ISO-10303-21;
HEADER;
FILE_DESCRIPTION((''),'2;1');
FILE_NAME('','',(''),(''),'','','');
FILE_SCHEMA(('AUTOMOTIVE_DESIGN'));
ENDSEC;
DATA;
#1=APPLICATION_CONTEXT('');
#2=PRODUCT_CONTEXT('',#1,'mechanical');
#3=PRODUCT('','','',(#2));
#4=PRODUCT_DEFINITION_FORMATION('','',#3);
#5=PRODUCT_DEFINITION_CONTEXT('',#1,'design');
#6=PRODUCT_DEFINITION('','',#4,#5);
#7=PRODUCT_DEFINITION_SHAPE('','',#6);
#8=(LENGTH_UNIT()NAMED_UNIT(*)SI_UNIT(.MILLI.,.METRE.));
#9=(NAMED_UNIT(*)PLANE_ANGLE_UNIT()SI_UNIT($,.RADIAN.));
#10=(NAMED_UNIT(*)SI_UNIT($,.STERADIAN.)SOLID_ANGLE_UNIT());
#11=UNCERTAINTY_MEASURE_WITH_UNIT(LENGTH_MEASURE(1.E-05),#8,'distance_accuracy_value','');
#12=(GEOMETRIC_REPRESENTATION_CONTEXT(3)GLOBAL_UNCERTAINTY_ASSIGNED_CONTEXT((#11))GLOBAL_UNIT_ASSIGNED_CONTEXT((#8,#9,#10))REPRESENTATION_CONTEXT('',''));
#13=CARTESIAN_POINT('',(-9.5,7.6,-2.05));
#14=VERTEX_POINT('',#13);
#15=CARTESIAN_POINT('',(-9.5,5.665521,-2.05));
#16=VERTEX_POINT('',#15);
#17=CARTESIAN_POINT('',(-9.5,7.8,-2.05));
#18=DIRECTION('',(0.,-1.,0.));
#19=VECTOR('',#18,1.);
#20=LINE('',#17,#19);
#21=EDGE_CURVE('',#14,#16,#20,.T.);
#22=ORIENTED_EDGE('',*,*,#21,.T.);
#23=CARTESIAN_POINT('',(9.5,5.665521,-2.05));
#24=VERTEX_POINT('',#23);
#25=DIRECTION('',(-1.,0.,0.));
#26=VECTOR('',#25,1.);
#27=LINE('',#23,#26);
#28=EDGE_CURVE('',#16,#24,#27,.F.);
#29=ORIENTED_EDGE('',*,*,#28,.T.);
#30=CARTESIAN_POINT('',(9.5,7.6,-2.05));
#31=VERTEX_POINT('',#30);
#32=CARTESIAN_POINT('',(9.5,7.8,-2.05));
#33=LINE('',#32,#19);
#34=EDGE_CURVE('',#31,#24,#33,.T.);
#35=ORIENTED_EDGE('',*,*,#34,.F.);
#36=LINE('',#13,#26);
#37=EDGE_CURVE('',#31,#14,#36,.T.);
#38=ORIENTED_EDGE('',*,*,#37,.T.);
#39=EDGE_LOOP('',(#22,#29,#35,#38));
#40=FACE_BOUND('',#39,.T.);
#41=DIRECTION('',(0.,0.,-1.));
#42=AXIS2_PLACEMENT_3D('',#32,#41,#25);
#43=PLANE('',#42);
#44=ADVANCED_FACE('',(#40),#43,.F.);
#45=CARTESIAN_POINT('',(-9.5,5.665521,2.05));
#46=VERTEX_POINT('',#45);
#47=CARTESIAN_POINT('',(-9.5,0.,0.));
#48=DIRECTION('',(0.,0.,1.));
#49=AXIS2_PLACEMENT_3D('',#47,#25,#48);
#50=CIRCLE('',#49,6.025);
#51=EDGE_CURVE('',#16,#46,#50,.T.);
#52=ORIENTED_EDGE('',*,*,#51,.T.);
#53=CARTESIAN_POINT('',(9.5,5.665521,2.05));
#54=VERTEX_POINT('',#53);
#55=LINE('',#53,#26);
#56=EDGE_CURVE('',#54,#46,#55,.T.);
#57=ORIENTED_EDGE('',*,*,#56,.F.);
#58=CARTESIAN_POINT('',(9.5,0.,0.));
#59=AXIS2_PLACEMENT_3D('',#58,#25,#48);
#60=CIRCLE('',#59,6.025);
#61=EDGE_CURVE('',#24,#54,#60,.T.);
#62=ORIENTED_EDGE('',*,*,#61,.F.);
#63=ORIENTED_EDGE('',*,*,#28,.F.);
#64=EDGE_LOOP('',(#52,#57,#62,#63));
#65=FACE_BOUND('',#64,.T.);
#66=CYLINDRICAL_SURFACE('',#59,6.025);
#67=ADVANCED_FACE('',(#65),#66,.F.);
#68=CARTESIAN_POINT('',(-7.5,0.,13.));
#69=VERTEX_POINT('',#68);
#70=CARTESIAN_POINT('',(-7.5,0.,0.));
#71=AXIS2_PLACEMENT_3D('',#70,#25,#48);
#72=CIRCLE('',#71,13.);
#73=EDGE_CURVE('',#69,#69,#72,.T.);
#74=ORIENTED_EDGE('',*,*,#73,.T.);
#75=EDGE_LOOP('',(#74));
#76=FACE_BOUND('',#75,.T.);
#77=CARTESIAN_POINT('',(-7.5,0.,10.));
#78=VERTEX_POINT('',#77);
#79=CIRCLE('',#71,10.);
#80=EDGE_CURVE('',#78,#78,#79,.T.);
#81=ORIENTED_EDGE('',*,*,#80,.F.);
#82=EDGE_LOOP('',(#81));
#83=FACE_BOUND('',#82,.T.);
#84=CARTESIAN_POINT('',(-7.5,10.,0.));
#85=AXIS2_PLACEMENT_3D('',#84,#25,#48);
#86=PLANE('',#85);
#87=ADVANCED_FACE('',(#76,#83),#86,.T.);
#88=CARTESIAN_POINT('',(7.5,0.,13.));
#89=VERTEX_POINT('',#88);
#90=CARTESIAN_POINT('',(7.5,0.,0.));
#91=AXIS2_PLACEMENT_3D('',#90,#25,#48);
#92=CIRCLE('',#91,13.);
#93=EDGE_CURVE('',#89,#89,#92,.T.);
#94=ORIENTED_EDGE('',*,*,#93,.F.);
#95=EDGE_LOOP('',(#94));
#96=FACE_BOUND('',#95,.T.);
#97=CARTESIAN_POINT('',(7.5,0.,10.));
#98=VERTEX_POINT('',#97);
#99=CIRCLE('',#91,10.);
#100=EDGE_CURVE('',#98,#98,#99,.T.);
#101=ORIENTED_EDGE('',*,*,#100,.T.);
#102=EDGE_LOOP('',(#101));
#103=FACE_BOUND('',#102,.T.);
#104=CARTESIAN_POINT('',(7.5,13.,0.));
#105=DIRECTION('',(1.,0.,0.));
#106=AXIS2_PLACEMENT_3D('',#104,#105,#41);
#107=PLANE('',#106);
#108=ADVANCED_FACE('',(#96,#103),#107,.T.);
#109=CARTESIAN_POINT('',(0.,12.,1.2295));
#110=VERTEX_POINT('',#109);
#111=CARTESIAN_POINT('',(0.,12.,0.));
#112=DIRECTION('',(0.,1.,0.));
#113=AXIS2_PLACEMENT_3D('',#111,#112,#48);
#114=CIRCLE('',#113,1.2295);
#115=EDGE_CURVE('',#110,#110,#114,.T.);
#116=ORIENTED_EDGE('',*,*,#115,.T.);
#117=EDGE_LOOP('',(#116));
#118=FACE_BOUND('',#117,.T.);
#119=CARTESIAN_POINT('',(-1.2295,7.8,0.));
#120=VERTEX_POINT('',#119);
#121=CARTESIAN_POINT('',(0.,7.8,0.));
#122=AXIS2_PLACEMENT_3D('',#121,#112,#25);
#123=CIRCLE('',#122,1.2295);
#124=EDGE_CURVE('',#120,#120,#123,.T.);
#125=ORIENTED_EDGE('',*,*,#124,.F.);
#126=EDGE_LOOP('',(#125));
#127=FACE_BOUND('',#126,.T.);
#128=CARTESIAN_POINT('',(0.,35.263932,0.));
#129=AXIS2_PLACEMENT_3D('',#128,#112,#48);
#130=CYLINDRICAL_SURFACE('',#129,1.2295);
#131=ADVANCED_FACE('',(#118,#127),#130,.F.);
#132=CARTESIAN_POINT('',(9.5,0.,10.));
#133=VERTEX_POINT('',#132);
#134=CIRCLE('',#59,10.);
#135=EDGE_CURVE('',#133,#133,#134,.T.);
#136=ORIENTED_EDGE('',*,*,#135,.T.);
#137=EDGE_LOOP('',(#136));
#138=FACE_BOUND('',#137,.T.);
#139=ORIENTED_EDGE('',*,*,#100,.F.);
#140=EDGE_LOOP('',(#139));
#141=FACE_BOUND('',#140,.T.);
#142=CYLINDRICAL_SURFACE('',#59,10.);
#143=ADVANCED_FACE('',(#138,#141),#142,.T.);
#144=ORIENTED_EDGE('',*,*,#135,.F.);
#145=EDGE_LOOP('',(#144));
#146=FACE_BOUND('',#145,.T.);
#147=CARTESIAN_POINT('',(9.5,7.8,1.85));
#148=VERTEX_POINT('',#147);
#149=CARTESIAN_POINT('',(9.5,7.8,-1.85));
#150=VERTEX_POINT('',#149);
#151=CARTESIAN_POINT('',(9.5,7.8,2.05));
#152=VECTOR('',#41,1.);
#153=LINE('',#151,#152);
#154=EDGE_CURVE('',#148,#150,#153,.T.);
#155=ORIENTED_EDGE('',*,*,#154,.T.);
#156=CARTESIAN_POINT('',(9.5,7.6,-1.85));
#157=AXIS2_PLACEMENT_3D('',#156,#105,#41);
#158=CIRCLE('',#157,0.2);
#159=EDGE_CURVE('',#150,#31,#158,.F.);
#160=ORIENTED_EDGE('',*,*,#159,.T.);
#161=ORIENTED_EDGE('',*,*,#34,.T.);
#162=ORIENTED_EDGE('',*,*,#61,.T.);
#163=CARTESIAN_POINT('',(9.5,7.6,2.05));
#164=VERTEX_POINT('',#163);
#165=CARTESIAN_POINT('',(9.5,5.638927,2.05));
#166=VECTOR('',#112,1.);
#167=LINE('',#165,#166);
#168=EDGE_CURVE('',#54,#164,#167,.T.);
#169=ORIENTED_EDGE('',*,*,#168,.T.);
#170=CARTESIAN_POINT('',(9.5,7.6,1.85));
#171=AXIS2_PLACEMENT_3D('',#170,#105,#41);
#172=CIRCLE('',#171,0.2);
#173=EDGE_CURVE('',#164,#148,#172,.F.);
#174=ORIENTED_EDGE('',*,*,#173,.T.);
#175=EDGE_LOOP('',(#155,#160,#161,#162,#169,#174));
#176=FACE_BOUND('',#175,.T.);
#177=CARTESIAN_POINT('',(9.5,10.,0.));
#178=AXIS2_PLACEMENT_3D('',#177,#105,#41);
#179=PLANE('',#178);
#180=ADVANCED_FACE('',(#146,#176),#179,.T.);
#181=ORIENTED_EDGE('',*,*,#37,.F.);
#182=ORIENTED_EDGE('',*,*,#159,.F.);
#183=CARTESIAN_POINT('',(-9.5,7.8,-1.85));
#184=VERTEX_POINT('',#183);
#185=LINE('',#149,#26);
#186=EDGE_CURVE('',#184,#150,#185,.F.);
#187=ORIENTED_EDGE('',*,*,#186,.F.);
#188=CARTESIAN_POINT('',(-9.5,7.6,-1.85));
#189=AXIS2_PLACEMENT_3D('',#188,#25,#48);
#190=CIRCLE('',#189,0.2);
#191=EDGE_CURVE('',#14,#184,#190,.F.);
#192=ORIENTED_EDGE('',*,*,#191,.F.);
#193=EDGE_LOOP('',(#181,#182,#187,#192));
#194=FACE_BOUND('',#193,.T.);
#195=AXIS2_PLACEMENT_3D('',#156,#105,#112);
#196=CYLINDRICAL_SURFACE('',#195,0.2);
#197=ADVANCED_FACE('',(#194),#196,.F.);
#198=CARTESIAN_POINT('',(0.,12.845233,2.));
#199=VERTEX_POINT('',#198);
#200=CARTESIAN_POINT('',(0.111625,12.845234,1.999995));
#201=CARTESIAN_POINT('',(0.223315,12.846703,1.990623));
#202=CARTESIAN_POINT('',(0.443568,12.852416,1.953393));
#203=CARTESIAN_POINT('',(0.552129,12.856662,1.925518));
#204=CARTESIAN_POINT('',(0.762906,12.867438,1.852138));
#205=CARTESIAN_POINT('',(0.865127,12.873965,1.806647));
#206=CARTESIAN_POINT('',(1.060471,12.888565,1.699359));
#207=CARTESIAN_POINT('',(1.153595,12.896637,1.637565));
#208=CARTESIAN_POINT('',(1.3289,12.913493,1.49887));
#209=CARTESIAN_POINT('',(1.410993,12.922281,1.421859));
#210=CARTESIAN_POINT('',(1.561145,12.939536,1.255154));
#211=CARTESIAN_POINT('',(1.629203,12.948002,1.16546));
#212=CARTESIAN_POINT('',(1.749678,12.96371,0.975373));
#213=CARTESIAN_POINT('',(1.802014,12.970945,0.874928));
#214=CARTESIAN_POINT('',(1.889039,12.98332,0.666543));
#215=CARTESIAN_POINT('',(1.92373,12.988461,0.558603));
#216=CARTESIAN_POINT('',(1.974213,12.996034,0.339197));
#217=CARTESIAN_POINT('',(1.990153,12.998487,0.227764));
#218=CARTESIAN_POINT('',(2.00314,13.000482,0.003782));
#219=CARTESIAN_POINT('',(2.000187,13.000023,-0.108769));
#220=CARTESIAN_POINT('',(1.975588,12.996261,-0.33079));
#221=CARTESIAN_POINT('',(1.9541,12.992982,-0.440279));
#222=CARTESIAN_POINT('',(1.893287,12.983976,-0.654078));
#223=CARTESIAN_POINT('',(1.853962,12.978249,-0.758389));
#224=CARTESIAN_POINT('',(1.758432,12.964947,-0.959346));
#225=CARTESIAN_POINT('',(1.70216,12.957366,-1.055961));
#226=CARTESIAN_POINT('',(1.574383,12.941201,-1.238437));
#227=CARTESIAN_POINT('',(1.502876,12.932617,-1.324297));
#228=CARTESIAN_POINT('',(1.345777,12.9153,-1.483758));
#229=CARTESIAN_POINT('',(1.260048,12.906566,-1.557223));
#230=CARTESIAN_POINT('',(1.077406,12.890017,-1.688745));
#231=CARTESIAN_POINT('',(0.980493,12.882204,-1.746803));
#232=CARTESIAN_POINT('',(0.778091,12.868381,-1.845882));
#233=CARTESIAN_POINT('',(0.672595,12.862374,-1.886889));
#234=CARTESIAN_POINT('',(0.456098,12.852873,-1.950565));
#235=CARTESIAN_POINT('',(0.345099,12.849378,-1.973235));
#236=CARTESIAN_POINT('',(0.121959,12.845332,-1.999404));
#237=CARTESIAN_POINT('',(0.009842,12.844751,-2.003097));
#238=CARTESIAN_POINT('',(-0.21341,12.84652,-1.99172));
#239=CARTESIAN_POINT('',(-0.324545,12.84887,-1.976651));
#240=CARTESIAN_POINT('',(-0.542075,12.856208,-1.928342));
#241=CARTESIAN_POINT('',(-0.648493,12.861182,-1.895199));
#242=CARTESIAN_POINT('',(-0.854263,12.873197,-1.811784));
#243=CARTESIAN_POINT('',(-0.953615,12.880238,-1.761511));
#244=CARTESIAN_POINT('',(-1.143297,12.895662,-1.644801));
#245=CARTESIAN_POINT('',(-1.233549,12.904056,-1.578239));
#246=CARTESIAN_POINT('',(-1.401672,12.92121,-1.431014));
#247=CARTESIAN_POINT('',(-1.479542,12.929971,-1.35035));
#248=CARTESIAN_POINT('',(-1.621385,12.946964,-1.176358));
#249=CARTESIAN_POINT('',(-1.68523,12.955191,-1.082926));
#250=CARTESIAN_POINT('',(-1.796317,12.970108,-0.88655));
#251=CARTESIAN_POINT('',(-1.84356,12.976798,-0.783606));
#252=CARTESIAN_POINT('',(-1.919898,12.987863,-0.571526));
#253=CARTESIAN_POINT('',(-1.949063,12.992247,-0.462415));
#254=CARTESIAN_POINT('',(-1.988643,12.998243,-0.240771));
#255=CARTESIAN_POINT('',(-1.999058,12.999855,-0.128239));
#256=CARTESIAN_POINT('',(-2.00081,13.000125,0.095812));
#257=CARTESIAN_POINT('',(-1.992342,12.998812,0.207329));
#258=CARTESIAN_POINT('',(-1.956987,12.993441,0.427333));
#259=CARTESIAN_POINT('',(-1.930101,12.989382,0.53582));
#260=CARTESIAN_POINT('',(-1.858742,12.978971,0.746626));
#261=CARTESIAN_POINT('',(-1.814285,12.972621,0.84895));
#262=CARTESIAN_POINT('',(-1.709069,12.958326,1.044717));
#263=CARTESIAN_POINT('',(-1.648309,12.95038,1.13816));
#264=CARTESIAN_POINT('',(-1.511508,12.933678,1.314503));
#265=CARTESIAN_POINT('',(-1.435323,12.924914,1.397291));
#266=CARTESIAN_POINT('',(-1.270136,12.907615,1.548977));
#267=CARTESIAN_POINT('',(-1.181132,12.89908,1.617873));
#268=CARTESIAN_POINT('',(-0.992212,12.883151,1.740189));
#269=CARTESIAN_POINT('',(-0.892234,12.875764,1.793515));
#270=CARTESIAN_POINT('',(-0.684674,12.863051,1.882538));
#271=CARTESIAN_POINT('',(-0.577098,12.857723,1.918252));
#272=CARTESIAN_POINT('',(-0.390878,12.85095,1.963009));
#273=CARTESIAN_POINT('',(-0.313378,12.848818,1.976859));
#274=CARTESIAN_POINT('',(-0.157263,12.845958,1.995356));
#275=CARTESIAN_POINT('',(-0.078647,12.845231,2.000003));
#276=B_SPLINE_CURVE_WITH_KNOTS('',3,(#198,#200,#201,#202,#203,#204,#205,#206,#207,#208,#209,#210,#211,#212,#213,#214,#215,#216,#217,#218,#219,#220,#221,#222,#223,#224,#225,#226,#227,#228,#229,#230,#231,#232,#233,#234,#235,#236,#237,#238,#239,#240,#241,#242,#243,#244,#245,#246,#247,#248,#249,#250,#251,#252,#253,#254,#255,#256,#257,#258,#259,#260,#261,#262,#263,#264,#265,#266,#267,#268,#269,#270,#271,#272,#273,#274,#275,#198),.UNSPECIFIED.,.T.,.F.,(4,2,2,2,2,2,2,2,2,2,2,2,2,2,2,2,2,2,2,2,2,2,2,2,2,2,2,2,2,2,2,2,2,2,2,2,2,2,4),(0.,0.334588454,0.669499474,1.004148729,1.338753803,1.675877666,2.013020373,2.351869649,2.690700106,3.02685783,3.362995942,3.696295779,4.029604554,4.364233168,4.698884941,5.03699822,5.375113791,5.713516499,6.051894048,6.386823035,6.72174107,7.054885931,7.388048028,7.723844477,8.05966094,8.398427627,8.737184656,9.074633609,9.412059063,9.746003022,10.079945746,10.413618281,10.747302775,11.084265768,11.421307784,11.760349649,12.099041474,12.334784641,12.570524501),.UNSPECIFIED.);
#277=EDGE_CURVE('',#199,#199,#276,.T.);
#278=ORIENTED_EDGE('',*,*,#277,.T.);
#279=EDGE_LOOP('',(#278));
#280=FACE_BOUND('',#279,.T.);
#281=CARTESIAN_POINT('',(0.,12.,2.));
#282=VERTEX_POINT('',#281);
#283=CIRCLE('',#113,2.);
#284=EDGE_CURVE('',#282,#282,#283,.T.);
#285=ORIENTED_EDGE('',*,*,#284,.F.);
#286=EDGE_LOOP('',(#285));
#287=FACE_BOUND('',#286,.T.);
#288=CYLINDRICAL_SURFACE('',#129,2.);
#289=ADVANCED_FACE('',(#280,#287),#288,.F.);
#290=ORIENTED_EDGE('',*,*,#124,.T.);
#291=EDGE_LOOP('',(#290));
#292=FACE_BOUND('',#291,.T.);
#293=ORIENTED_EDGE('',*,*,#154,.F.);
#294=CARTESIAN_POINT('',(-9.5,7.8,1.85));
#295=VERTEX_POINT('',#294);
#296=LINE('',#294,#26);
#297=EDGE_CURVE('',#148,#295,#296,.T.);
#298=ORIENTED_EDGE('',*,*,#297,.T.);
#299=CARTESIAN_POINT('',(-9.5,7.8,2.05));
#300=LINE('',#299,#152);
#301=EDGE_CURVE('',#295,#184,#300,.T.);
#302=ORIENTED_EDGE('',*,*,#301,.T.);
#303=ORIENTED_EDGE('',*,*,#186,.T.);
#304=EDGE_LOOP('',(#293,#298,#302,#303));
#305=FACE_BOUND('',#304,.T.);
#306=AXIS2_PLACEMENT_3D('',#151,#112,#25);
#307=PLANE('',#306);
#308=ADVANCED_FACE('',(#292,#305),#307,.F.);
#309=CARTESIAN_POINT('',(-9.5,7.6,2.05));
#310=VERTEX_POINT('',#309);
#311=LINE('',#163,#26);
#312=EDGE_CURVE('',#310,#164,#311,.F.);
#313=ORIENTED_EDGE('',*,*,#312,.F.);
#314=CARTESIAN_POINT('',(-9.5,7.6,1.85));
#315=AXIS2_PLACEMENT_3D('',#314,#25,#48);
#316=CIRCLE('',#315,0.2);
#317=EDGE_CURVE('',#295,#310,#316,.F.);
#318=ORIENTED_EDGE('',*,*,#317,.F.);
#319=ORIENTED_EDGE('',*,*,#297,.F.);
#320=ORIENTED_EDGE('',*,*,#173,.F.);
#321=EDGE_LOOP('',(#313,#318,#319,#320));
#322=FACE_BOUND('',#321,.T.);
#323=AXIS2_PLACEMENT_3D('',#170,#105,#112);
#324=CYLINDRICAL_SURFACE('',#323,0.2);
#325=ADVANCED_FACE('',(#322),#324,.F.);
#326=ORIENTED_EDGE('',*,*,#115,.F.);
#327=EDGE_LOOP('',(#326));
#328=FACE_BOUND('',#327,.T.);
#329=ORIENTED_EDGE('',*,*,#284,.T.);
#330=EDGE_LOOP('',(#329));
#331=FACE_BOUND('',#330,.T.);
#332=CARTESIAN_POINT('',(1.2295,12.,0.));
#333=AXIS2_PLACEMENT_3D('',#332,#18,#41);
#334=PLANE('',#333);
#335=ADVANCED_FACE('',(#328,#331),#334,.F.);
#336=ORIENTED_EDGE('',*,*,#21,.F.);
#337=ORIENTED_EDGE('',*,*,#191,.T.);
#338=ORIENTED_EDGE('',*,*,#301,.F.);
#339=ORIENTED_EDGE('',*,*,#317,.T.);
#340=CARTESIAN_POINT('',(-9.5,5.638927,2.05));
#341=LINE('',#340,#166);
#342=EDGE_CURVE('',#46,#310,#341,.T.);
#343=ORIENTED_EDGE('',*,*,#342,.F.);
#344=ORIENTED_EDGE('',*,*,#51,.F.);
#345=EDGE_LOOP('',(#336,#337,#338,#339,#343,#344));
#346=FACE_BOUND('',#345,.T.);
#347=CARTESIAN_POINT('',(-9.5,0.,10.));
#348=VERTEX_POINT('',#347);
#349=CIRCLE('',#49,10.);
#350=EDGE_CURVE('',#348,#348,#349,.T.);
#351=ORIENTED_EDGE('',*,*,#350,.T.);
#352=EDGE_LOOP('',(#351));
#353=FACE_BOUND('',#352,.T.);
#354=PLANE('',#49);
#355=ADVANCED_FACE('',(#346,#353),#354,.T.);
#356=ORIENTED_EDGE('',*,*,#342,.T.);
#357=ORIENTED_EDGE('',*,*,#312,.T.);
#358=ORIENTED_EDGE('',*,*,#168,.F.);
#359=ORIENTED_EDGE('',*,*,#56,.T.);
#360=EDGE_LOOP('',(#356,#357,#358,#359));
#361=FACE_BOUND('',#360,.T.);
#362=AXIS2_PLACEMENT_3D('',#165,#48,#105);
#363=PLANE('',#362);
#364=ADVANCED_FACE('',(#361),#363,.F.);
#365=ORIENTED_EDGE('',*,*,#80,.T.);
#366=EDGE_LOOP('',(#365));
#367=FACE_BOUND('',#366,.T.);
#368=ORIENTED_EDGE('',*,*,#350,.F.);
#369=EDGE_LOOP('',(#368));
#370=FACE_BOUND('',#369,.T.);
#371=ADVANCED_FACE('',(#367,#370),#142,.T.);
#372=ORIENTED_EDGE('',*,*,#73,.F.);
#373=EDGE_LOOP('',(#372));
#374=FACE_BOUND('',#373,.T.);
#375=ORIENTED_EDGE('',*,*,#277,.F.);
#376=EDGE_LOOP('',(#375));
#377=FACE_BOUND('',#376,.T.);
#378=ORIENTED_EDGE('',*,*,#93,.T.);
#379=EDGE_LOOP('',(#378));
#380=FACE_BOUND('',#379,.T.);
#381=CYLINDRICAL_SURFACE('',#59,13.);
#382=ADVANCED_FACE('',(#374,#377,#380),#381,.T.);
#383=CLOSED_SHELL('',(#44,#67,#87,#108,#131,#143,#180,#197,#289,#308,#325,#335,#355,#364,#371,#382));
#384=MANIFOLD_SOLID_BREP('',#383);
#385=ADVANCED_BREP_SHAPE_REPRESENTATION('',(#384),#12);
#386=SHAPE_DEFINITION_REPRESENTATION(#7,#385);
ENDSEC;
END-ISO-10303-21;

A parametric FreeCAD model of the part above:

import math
import FreeCAD as App
import Part
import Sketcher

V = App.Vector


def edges_at(feature, points):
    """Names of the edges that pass closest to the given points."""
    edges = feature.Shape.Edges
    near = lambda p: min(range(len(edges)), key=lambda i: edges[i].distToShape(Part.Vertex(*p))[0])
    return sorted({f"Edge{near(p) + 1}" for p in points})


def add_polygon(sketch, points):
    """Adds a closed chain of lines whose ends are joined by coincident constraints."""
    first, n = sketch.GeometryCount, len(points)
    for a, b in zip(points, points[1:] + points[:1]):
        sketch.addGeometry(Part.LineSegment(App.Vector(*a, 0), App.Vector(*b, 0)), False)
    for i in range(n):
        sketch.addConstraint(Sketcher.Constraint("Coincident", first + i, 2, first + (i + 1) % n, 1))

doc = App.newDocument("Part")
body = doc.addObject("PartDesign::Body", "Body")

sketch1 = body.newObject("Sketcher::SketchObject", "Sketch")
sketch1.AttachmentSupport = (doc.getObject("XY_Plane"), [""])
sketch1.MapMode = "FlatFace"
add_polygon(sketch1, [(9.5, 10), (9.5, 0), (-9.5, 0), (-9.5, 10), (-7.5, 10), (-7.5, 13), (7.5, 13), (7.5, 10)])
sketch1.addConstraint([
    Sketcher.Constraint("Vertical", 0),
    Sketcher.Constraint("Horizontal", 1),
    Sketcher.Constraint("Vertical", 2),
    Sketcher.Constraint("Horizontal", 3),
    Sketcher.Constraint("Vertical", 4),
    Sketcher.Constraint("Horizontal", 5),
    Sketcher.Constraint("Vertical", 6),
    Sketcher.Constraint("Horizontal", 7),
    Sketcher.Constraint("Symmetric", 0, 2, 1, 2, -1, 1),
    Sketcher.Constraint("Symmetric", 3, 2, 6, 2, -2),
    Sketcher.Constraint("DistanceX", 1, 2, 1, 1, 19.0),
    Sketcher.Constraint("DistanceX", 3, 1, 3, 2, 2.0),
    Sketcher.Constraint("DistanceY", 0, 2, 0, 1, 10.0),
    Sketcher.Constraint("DistanceY", 4, 1, 4, 2, 3.0),
])
revolution = body.newObject("PartDesign::Revolution", "Revolution")
revolution.Profile = sketch1
revolution.ReferenceAxis = (sketch1, ["H_Axis"])
revolution.Angle = 360

sketch2 = body.newObject("Sketcher::SketchObject", "Sketch001")
sketch2.AttachmentSupport = (doc.getObject("YZ_Plane"), [""])
sketch2.MapMode = "FlatFace"
sketch2.AttachmentOffset = App.Placement(V(0, 0, -9.5), App.Rotation())
sketch2.addGeometry([
    Part.LineSegment(V(5.638927, 2.05, 0), V(7.8, 2.05, 0)),
    Part.LineSegment(V(7.8, 2.05, 0), V(7.8, -2.05, 0)),
    Part.LineSegment(V(7.8, -2.05, 0), V(5.638927, -2.05, 0)),
    Part.ArcOfCircle(Part.Circle(V(0, 0, 0), V(0, 0, 1), 6), math.radians(-19.978449), math.radians(19.978449)),
], False)
sketch2.addConstraint([
    Sketcher.Constraint("Coincident", 0, 2, 1, 1),
    Sketcher.Constraint("Coincident", 1, 2, 2, 1),
    Sketcher.Constraint("Coincident", 2, 2, 3, 1),
    Sketcher.Constraint("Coincident", 3, 2, 0, 1),
    Sketcher.Constraint("Horizontal", 0),
    Sketcher.Constraint("Vertical", 1),
    Sketcher.Constraint("Horizontal", 2),
    Sketcher.Constraint("Coincident", 3, 3, -1, 1),
    Sketcher.Constraint("Vertical", 2, 2, 3, 2),
    Sketcher.Constraint("Radius", 3, 6.0),
    Sketcher.Constraint("DistanceY", 1, 2, 1, 1, 4.1),
    Sketcher.Constraint("DistanceX", -1, 1, 0, 2, 7.8),
])
pocket1 = body.newObject("PartDesign::Pocket", "Pocket")
pocket1.Profile = sketch2
pocket1.Type = "ThroughAll"
pocket1.Reversed = True

sketch3 = body.newObject("Sketcher::SketchObject", "Sketch002")
sketch3.AttachmentSupport = (doc.getObject("XY_Plane"), [""])
sketch3.MapMode = "FlatFace"
add_polygon(sketch3, [(9.5, 6.025), (9.5, 0), (-9.5, 0), (-9.5, 6.025)])
sketch3.addConstraint([
    Sketcher.Constraint("Vertical", 0),
    Sketcher.Constraint("Horizontal", 1),
    Sketcher.Constraint("Vertical", 2),
    Sketcher.Constraint("Horizontal", 3),
    Sketcher.Constraint("Symmetric", 0, 2, 1, 2, -1, 1),
    Sketcher.Constraint("DistanceX", 1, 2, 1, 1, 19.0),
    Sketcher.Constraint("DistanceY", 0, 2, 0, 1, 6.025),
])
groove = body.newObject("PartDesign::Groove", "Groove")
groove.Profile = sketch3
groove.ReferenceAxis = (sketch3, ["H_Axis"])
groove.Angle = 360

sketch4 = body.newObject("Sketcher::SketchObject", "Sketch003")
sketch4.AttachmentSupport = (doc.getObject("XZ_Plane"), [""])
sketch4.MapMode = "FlatFace"
sketch4.AttachmentOffset = App.Placement(V(0, 0, -35.263932), App.Rotation())
sketch4.addGeometry(Part.Circle(V(0, 0, 0), V(0, 0, 1), 1.2295), False)
sketch4.addConstraint([
    Sketcher.Constraint("Coincident", 0, 3, -1, 1),
    Sketcher.Constraint("Diameter", 0, 2.459),
])
doc.recompute()
hole = body.newObject("PartDesign::Hole", "Hole")
hole.Profile = sketch4
hole.ThreadType = "None"
hole.Diameter = 2.459
hole.DepthType = "Dimension"
hole.Depth = 27.463932
hole.DrillPoint = "Flat"
hole.HoleCutType = "Counterbore"
hole.HoleCutDiameter = 4
hole.HoleCutDepth = 23.263932
hole.Reversed = True
doc.recompute()

fillet = body.newObject("PartDesign::Fillet", "Fillet")
fillet.Base = (hole, edges_at(hole, [(0, 7.8, -2.05), (0, 7.8, 2.05)]))
fillet.Radius = 0.2

doc.recompute()
